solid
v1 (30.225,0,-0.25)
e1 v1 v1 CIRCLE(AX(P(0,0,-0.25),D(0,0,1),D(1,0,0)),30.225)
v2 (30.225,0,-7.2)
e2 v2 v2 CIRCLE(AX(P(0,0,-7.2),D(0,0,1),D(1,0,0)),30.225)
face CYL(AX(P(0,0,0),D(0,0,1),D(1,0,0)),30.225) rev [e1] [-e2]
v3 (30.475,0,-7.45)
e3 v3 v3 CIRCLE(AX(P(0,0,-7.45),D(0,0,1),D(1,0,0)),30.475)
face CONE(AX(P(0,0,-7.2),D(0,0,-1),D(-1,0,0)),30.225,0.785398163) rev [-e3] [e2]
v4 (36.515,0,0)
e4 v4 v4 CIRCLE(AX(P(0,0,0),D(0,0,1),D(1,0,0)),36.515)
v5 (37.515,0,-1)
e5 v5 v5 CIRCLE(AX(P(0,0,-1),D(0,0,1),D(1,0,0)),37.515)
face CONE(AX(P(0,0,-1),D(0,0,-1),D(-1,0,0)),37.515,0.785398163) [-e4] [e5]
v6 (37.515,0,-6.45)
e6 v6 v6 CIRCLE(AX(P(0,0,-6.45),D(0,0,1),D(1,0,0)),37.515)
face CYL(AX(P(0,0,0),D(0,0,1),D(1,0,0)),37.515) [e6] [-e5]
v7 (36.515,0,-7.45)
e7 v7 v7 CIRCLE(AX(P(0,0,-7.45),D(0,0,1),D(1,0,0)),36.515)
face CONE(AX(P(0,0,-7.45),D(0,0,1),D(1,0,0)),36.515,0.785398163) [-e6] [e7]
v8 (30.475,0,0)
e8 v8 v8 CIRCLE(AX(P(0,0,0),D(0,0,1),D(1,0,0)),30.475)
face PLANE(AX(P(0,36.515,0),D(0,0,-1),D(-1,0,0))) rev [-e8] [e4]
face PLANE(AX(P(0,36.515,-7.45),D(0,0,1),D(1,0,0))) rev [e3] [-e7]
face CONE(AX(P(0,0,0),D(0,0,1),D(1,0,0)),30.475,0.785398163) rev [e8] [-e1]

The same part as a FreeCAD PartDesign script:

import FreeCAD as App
import Part
import Sketcher
from FreeCAD import Vector

doc = App.newDocument("Part")
body = doc.addObject("PartDesign::Body", "Body")

# Sketch on YZ plane
sketch1 = doc.addObject("Sketcher::SketchObject", "Sketch")
body.addObject(sketch1)
sketch1.AttachmentSupport = (doc.YZ_Plane, [""])
sketch1.MapMode = "FlatFace"
sketch1.addGeometry(Part.LineSegment(Vector(30.475, 0, 0), Vector(30.225, -0.25, 0)), False)
sketch1.addGeometry(Part.LineSegment(Vector(30.225, -0.25, 0), Vector(30.225, -7.2, 0)), False)
sketch1.addGeometry(Part.LineSegment(Vector(30.225, -7.2, 0), Vector(30.475, -7.45, 0)), False)
sketch1.addGeometry(Part.LineSegment(Vector(30.475, -7.45, 0), Vector(36.515, -7.45, 0)), False)
sketch1.addGeometry(Part.LineSegment(Vector(36.515, -7.45, 0), Vector(37.515, -6.45, 0)), False)
sketch1.addGeometry(Part.LineSegment(Vector(37.515, -6.45, 0), Vector(37.515, -1, 0)), False)
sketch1.addGeometry(Part.LineSegment(Vector(37.515, -1, 0), Vector(36.515, 0, 0)), False)
sketch1.addGeometry(Part.LineSegment(Vector(36.515, 0, 0), Vector(30.475, 0, 0)), False)
sketch1.addConstraint(Sketcher.Constraint("Coincident", 0, 2, 1, 1))
sketch1.addConstraint(Sketcher.Constraint("Coincident", 1, 2, 2, 1))
sketch1.addConstraint(Sketcher.Constraint("Coincident", 2, 2, 3, 1))
sketch1.addConstraint(Sketcher.Constraint("Coincident", 3, 2, 4, 1))
sketch1.addConstraint(Sketcher.Constraint("Coincident", 4, 2, 5, 1))
sketch1.addConstraint(Sketcher.Constraint("Coincident", 5, 2, 6, 1))
sketch1.addConstraint(Sketcher.Constraint("Coincident", 6, 2, 7, 1))
sketch1.addConstraint(Sketcher.Constraint("Coincident", 7, 2, 0, 1))
sketch1.addConstraint(Sketcher.Constraint("Vertical", 1))
sketch1.addConstraint(Sketcher.Constraint("Horizontal", 3))
sketch1.addConstraint(Sketcher.Constraint("Vertical", 5))
sketch1.addConstraint(Sketcher.Constraint("Horizontal", 7))
sketch1.addConstraint(Sketcher.Constraint("PointOnObject", 6, 2, -1))
sketch1.addConstraint(Sketcher.Constraint("Perpendicular", 0, 2))
sketch1.addConstraint(Sketcher.Constraint("Perpendicular", 2, 4))
sketch1.addConstraint(Sketcher.Constraint("Perpendicular", 4, 6))
sketch1.addConstraint(Sketcher.Constraint("Vertical", 3, 2, 6, 2))
sketch1.addConstraint(Sketcher.Constraint("Vertical", 2, 2, 7, 2))
sketch1.addConstraint(Sketcher.Constraint("Equal", 0, 2))
sketch1.addConstraint(Sketcher.Constraint("DistanceY", 5, 2, -1, 1, 1.0))
sketch1.addConstraint(Sketcher.Constraint("DistanceX", 3, 1, 3, 2, 6.04))
sketch1.addConstraint(Sketcher.Constraint("DistanceY", 1, 2, 1, 1, 6.95))
sketch1.addConstraint(Sketcher.Constraint("DistanceY", 5, 1, 5, 2, 5.45))
sketch1.addConstraint(Sketcher.Constraint("DistanceX", -1, 1, 0, 2, 30.225))
revolution = doc.addObject("PartDesign::Revolution", "Revolution")
body.addObject(revolution)
revolution.Profile = sketch1
revolution.ReferenceAxis = (sketch1, ["V_Axis"])
revolution.Angle = 360

doc.recompute()
